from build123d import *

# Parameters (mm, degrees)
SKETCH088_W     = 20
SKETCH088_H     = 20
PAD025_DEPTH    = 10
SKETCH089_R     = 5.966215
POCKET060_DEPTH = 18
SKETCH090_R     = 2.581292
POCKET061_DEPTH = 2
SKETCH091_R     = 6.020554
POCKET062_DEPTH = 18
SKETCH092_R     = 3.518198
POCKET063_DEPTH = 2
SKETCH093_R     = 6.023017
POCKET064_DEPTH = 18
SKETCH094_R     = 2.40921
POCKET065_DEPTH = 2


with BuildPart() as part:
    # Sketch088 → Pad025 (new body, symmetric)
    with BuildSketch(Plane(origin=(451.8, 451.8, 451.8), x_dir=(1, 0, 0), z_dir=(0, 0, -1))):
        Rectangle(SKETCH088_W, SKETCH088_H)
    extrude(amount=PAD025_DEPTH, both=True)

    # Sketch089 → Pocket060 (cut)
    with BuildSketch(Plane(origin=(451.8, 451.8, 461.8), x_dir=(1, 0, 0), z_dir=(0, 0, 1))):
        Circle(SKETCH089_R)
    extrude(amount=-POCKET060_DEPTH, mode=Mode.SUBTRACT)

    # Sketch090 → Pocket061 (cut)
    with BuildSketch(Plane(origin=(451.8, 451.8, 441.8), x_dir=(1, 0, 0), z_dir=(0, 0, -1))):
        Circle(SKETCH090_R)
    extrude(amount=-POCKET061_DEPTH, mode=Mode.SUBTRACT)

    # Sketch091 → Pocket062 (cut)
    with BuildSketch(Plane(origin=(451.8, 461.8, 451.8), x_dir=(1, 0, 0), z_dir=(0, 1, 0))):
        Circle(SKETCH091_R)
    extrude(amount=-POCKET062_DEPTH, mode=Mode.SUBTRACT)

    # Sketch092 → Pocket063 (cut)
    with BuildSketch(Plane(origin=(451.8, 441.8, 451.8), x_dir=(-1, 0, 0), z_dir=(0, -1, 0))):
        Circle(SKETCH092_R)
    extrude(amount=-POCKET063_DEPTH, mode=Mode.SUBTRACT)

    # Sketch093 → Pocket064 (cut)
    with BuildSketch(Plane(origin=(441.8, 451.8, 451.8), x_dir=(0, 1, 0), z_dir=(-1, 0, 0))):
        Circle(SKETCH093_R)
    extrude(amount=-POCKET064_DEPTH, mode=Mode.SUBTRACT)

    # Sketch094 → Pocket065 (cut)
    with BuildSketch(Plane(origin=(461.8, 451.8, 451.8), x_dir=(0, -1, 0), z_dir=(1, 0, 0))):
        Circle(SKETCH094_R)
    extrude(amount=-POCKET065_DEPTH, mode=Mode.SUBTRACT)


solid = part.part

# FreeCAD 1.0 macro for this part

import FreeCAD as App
import Part
import Sketcher
from FreeCAD import Vector


def add_polygon(sketch, points):
    """Adds a closed chain of lines whose ends are joined by coincident constraints."""
    first, n = sketch.GeometryCount, len(points)
    for a, b in zip(points, points[1:] + points[:1]):
        sketch.addGeometry(Part.LineSegment(App.Vector(*a, 0), App.Vector(*b, 0)), False)
    for i in range(n):
        sketch.addConstraint(Sketcher.Constraint("Coincident", first + i, 2, first + (i + 1) % n, 1))

doc = App.newDocument("Part")
body = doc.addObject("PartDesign::Body", "Body")

# Sketch on XY plane
sketch1 = body.newObject("Sketcher::SketchObject", "Sketch")
sketch1.AttachmentSupport = (doc.getObject("XY_Plane"), [""])
sketch1.MapMode = "FlatFace"
sketch1.AttachmentOffset = App.Placement(Vector(0, 0, 451.8), App.Rotation())
add_polygon(sketch1, [(442, 442), (442, 462), (462, 462), (462, 442)])  # lines 0-3
sketch1.addConstraint([
    Sketcher.Constraint("Vertical", 0),
    Sketcher.Constraint("Horizontal", 1),
    Sketcher.Constraint("Vertical", 2),
    Sketcher.Constraint("Horizontal", 3),
    Sketcher.Constraint("Equal", 3, 0),
    Sketcher.Constraint("DistanceX", 1, 1, 1, 2, 20.0),
    Sketcher.Constraint("DistanceX", -1, 1, 0, 2, 441.8),
    Sketcher.Constraint("DistanceY", -1, 1, 0, 2, 461.8),
])
pad1 = body.newObject("PartDesign::Pad", "Pad")
pad1.Profile = sketch1
pad1.Length = 20
pad1.Midplane = True

# Sketch on XY plane
sketch2 = body.newObject("Sketcher::SketchObject", "Sketch001")
sketch2.AttachmentSupport = (doc.getObject("XY_Plane"), [""])
sketch2.MapMode = "FlatFace"
sketch2.AttachmentOffset = App.Placement(Vector(0, 0, 461.8), App.Rotation())
sketch2.addGeometry(Part.Circle(Vector(452, 452, 0), Vector(0, 0, 1), 6), False)
sketch2.addConstraint([
    Sketcher.Constraint("DistanceX", -1, 1, 0, 3, 451.8),
    Sketcher.Constraint("DistanceY", -1, 1, 0, 3, 451.8),
    Sketcher.Constraint("Diameter", 0, 11.93243),
])
pocket1 = body.newObject("PartDesign::Pocket", "Pocket")
pocket1.Profile = sketch2
pocket1.Length = 18

# Sketch on XY plane
sketch3 = body.newObject("Sketcher::SketchObject", "Sketch002")
sketch3.AttachmentSupport = (doc.getObject("XY_Plane"), [""])
sketch3.MapMode = "FlatFace"
sketch3.AttachmentOffset = App.Placement(Vector(0, 0, 441.8), App.Rotation())
sketch3.addGeometry(Part.Circle(Vector(451.8, 451.8, 0), Vector(0, 0, 1), 2.6), False)
sketch3.addConstraint([
    Sketcher.Constraint("DistanceX", -1, 1, 0, 3, 451.8),
    Sketcher.Constraint("DistanceY", -1, 1, 0, 3, 451.8),
    Sketcher.Constraint("Diameter", 0, 5.162584),
])
pocket2 = body.newObject("PartDesign::Pocket", "Pocket001")
pocket2.Profile = sketch3
pocket2.Length = 2
pocket2.Reversed = True

# Sketch on XZ plane
sketch4 = body.newObject("Sketcher::SketchObject", "Sketch003")
sketch4.AttachmentSupport = (doc.getObject("XZ_Plane"), [""])
sketch4.MapMode = "FlatFace"
sketch4.AttachmentOffset = App.Placement(Vector(0, 0, -461.8), App.Rotation())
sketch4.addGeometry(Part.Circle(Vector(452, 452, 0), Vector(0, 0, 1), 6), False)
sketch4.addConstraint([
    Sketcher.Constraint("DistanceX", -1, 1, 0, 3, 451.8),
    Sketcher.Constraint("DistanceY", -1, 1, 0, 3, 451.8),
    Sketcher.Constraint("Diameter", 0, 12.041108),
])
pocket3 = body.newObject("PartDesign::Pocket", "Pocket002")
pocket3.Profile = sketch4
pocket3.Length = 18
pocket3.Reversed = True

# Sketch on XZ plane
sketch5 = body.newObject("Sketcher::SketchObject", "Sketch004")
sketch5.AttachmentSupport = (doc.getObject("XZ_Plane"), [""])
sketch5.MapMode = "FlatFace"
sketch5.AttachmentOffset = App.Placement(Vector(0, 0, -441.8), App.Rotation())
sketch5.addGeometry(Part.Circle(Vector(451.8, 451.8, 0), Vector(0, 0, 1), 3.5), False)
sketch5.addConstraint([
    Sketcher.Constraint("DistanceX", -1, 1, 0, 3, 451.8),
    Sketcher.Constraint("DistanceY", -1, 1, 0, 3, 451.8),
    Sketcher.Constraint("Diameter", 0, 7.036396),
])
pocket4 = body.newObject("PartDesign::Pocket", "Pocket003")
pocket4.Profile = sketch5
pocket4.Length = 2

# Sketch on YZ plane
sketch6 = body.newObject("Sketcher::SketchObject", "Sketch005")
sketch6.AttachmentSupport = (doc.getObject("YZ_Plane"), [""])
sketch6.MapMode = "FlatFace"
sketch6.AttachmentOffset = App.Placement(Vector(0, 0, 441.8), App.Rotation())
sketch6.addGeometry(Part.Circle(Vector(452, 452, 0), Vector(0, 0, 1), 6), False)
sketch6.addConstraint([
    Sketcher.Constraint("DistanceX", -1, 1, 0, 3, 451.8),
    Sketcher.Constraint("DistanceY", -1, 1, 0, 3, 451.8),
    Sketcher.Constraint("Diameter", 0, 12.046034),
])
pocket5 = body.newObject("PartDesign::Pocket", "Pocket004")
pocket5.Profile = sketch6
pocket5.Length = 18
pocket5.Reversed = True

# Sketch on YZ plane
sketch7 = body.newObject("Sketcher::SketchObject", "Sketch006")
sketch7.AttachmentSupport = (doc.getObject("YZ_Plane"), [""])
sketch7.MapMode = "FlatFace"
sketch7.AttachmentOffset = App.Placement(Vector(0, 0, 461.8), App.Rotation())
sketch7.addGeometry(Part.Circle(Vector(451.8, 451.8, 0), Vector(0, 0, 1), 2.4), False)
sketch7.addConstraint([
    Sketcher.Constraint("DistanceX", -1, 1, 0, 3, 451.8),
    Sketcher.Constraint("DistanceY", -1, 1, 0, 3, 451.8),
    Sketcher.Constraint("Diameter", 0, 4.81842),
])
pocket6 = body.newObject("PartDesign::Pocket", "Pocket005")
pocket6.Profile = sketch7
pocket6.Length = 2

doc.recompute()
